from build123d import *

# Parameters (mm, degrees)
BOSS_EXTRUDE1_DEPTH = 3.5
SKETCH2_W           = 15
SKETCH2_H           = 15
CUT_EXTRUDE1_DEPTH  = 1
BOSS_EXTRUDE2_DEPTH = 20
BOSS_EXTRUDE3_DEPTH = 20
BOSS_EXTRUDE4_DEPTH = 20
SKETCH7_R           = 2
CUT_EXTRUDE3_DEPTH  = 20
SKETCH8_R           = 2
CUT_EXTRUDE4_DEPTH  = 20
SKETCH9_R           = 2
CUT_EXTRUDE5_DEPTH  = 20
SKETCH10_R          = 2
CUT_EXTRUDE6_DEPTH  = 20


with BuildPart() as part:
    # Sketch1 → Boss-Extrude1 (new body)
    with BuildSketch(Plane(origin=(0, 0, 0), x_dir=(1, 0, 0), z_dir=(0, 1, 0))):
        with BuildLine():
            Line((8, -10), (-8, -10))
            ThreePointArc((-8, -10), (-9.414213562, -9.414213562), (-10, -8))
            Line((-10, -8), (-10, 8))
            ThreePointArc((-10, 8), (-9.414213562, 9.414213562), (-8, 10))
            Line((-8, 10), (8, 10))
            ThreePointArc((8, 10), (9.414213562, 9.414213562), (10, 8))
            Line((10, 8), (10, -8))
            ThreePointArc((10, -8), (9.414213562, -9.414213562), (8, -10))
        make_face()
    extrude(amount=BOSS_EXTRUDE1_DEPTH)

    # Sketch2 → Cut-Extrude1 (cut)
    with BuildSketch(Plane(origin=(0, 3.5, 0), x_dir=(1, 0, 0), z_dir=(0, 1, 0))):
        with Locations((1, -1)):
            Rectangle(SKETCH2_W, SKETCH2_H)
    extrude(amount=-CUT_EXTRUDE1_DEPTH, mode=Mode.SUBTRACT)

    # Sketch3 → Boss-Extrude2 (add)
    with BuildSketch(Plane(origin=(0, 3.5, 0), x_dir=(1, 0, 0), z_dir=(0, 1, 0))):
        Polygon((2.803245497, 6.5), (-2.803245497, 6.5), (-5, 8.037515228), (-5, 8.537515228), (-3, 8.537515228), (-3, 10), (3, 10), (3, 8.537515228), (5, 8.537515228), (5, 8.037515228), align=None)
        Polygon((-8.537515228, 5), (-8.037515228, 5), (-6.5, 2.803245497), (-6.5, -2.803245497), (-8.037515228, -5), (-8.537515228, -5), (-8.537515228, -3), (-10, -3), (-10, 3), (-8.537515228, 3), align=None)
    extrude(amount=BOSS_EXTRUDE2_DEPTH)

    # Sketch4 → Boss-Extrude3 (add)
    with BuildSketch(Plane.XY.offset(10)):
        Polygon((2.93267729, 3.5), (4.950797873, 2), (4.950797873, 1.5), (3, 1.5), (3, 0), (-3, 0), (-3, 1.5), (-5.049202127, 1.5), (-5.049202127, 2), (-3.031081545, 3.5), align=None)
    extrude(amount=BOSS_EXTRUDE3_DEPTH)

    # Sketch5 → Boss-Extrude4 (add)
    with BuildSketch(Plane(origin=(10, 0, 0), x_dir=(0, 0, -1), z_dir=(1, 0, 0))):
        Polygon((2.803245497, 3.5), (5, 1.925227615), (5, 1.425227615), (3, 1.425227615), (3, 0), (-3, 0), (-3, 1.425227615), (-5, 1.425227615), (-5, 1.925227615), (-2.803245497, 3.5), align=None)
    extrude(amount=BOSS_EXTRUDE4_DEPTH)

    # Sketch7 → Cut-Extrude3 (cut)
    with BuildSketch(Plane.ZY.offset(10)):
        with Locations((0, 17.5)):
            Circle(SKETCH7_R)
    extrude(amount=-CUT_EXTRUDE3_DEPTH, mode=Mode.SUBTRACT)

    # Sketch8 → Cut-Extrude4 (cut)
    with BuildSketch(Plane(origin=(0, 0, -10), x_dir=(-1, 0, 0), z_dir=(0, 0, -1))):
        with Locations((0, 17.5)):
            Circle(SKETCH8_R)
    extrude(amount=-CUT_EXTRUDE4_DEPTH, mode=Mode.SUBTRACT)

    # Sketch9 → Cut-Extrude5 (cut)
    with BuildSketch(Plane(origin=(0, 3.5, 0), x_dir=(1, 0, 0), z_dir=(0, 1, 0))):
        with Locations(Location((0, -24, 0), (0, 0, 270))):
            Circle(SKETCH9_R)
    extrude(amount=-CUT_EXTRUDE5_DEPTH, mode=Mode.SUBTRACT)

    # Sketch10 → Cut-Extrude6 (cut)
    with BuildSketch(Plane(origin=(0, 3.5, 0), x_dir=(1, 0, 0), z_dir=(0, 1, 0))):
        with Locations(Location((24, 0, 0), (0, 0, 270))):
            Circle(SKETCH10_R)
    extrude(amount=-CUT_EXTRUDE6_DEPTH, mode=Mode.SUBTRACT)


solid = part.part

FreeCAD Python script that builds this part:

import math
import FreeCAD as App
import Part
import Sketcher

V = App.Vector

doc = App.newDocument("Part")
params = doc.addObject("Spreadsheet::Sheet", "Params")
for row, (alias, value) in enumerate([
    ("sketch1_radius", "2 mm"),
    ("sketch1_width", "16 mm"),
    ("pad1_length", "3.5 mm"),
    ("sketch2_width", "15 mm"),
    ("pocket1_length", "1 mm"),
    ("sketch3_width", "2 mm"),
    ("sketch3_width2", "6 mm"),
    ("sketch3_width3", "0.5 mm"),
    ("pad2_length", "20 mm"),
    ("sketch4_width", "6 mm"),
    ("sketch4_height", "0.5 mm"),
    ("sketch4_height2", "1.5 mm"),
    ("pad3_length", "20 mm"),
    ("sketch5_height", "2 mm"),
    ("sketch5_height2", "6 mm"),
    ("sketch5_width", "0.5 mm"),
    ("pad4_length", "20 mm"),
    ("sketch6_diameter", "4 mm"),
    ("pocket2_length", "20 mm"),
    ("sketch7_diameter", "4 mm"),
    ("pocket3_length", "20 mm"),
    ("sketch8_diameter", "4 mm"),
    ("pocket4_length", "20 mm"),
    ("sketch9_diameter", "4 mm"),
    ("pocket5_length", "20 mm"),
], start=1):
    params.set(f"A{row}", alias)
    params.set(f"B{row}", "=" + value)
    params.setAlias(f"B{row}", alias)

body = doc.addObject("PartDesign::Body", "Body")

# Sketch on XZ plane
sketch1 = body.newObject("Sketcher::SketchObject", "Sketch")
sketch1.AttachmentSupport = (doc.getObject("XZ_Plane"), [""])
sketch1.MapMode = "FlatFace"
sketch1.addGeometry([
    Part.LineSegment(V(-8, 10, 0), V(8, 10, 0)),  # 0
    Part.ArcOfCircle(Part.Circle(V(8, 8, 0), V(0, 0, 1), 2), math.radians(0), math.radians(90)),  # 1
    Part.LineSegment(V(10, 8, 0), V(10, -8, 0)),  # 2
    Part.ArcOfCircle(Part.Circle(V(8, -8, 0), V(0, 0, 1), 2), math.radians(-90), math.radians(0)),  # 3
    Part.LineSegment(V(8, -10, 0), V(-8, -10, 0)),  # 4
    Part.ArcOfCircle(Part.Circle(V(-8, -8, 0), V(0, 0, 1), 2), math.radians(-180), math.radians(-90)),  # 5
    Part.LineSegment(V(-10, -8, 0), V(-10, 8, 0)),  # 6
    Part.ArcOfCircle(Part.Circle(V(-8, 8, 0), V(0, 0, 1), 2), math.radians(90), math.radians(180)),  # 7
], False)
sketch1.addConstraint([
    Sketcher.Constraint("Tangent", 0, 2, 1, 2),
    Sketcher.Constraint("Tangent", 1, 1, 2, 1),
    Sketcher.Constraint("Tangent", 2, 2, 3, 2),
    Sketcher.Constraint("Tangent", 3, 1, 4, 1),
    Sketcher.Constraint("Tangent", 4, 2, 5, 2),
    Sketcher.Constraint("Tangent", 5, 1, 6, 1),
    Sketcher.Constraint("Tangent", 6, 2, 7, 2),
    Sketcher.Constraint("Tangent", 7, 1, 0, 1),
    Sketcher.Constraint("Horizontal", 0),
    Sketcher.Constraint("Vertical", 2),
    Sketcher.Constraint("Horizontal", 4),
    Sketcher.Constraint("Vertical", 6),
    Sketcher.Constraint("Equal", 1, 3),
    Sketcher.Constraint("Equal", 3, 5),
    Sketcher.Constraint("Equal", 5, 7),
    Sketcher.Constraint("Symmetric", 1, 3, 5, 3, -1, 1),
    Sketcher.Constraint("Equal", 4, 2),
    Sketcher.Constraint("Radius", 1, 2.0),
    Sketcher.Constraint("DistanceX", 0, 1, 0, 2, 16.0),
])
sketch1.setExpression("Constraints[17]", "Params.sketch1_radius")
sketch1.setExpression("Constraints[18]", "Params.sketch1_width")
pad1 = body.newObject("PartDesign::Pad", "Pad")
pad1.Profile = sketch1
pad1.setExpression("Length", "Params.pad1_length")
pad1.Reversed = True

# Sketch on XZ plane
sketch2 = body.newObject("Sketcher::SketchObject", "Sketch001")
sketch2.AttachmentSupport = (doc.getObject("XZ_Plane"), [""])
sketch2.MapMode = "FlatFace"
sketch2.AttachmentOffset = App.Placement(V(0, 0, -3.5), App.Rotation())
sketch2.addGeometry([
    Part.LineSegment(V(-6.5, -6.5, 0), V(-6.5, 8.5, 0)),
    Part.LineSegment(V(-6.5, 8.5, 0), V(8.5, 8.5, 0)),
    Part.LineSegment(V(8.5, 8.5, 0), V(8.5, -6.5, 0)),
    Part.LineSegment(V(8.5, -6.5, 0), V(-6.5, -6.5, 0)),
], False)
sketch2.addConstraint([
    Sketcher.Constraint("Coincident", 0, 2, 1, 1),
    Sketcher.Constraint("Coincident", 1, 2, 2, 1),
    Sketcher.Constraint("Coincident", 2, 2, 3, 1),
    Sketcher.Constraint("Coincident", 3, 2, 0, 1),
    Sketcher.Constraint("Vertical", 0),
    Sketcher.Constraint("Horizontal", 1),
    Sketcher.Constraint("Vertical", 2),
    Sketcher.Constraint("Horizontal", 3),
    Sketcher.Constraint("Equal", 3, 0),
    Sketcher.Constraint("DistanceX", 1, 1, 1, 2, 15.0),
    Sketcher.Constraint("DistanceX", 0, 2, -1, 1, 6.5),
    Sketcher.Constraint("DistanceY", -1, 1, 0, 2, 8.5),
])
sketch2.setExpression("Constraints[9]", "Params.sketch2_width")
pocket1 = body.newObject("PartDesign::Pocket", "Pocket")
pocket1.Profile = sketch2
pocket1.setExpression("Length", "Params.pocket1_length")
pocket1.Reversed = True

# Sketch on XZ plane
sketch3 = body.newObject("Sketcher::SketchObject", "Sketch002")
sketch3.AttachmentSupport = (doc.getObject("XZ_Plane"), [""])
sketch3.MapMode = "FlatFace"
sketch3.AttachmentOffset = App.Placement(V(0, 0, -3.5), App.Rotation())
sketch3.addGeometry([
    Part.LineSegment(V(-2.803245, -6.5, 0), V(2.803245, -6.5, 0)),  # 0
    Part.LineSegment(V(2.803245, -6.5, 0), V(5, -8.037515, 0)),  # 1
    Part.LineSegment(V(5, -8.037515, 0), V(5, -8.537515, 0)),  # 2
    Part.LineSegment(V(5, -8.537515, 0), V(3, -8.537515, 0)),  # 3
    Part.LineSegment(V(3, -8.537515, 0), V(3, -10, 0)),  # 4
    Part.LineSegment(V(3, -10, 0), V(-3, -10, 0)),  # 5
    Part.LineSegment(V(-3, -10, 0), V(-3, -8.537515, 0)),  # 6
    Part.LineSegment(V(-3, -8.537515, 0), V(-5, -8.537515, 0)),  # 7
    Part.LineSegment(V(-5, -8.537515, 0), V(-5, -8.037515, 0)),  # 8
    Part.LineSegment(V(-5, -8.037515, 0), V(-2.803245, -6.5, 0)),  # 9
    Part.LineSegment(V(-8.037515, -5, 0), V(-8.537515, -5, 0)),  # 10
    Part.LineSegment(V(-8.537515, -5, 0), V(-8.537515, -3, 0)),  # 11
    Part.LineSegment(V(-8.537515, -3, 0), V(-10, -3, 0)),  # 12
    Part.LineSegment(V(-10, -3, 0), V(-10, 3, 0)),  # 13
    Part.LineSegment(V(-10, 3, 0), V(-8.537515, 3, 0)),  # 14
    Part.LineSegment(V(-8.537515, 3, 0), V(-8.537515, 5, 0)),  # 15
    Part.LineSegment(V(-8.537515, 5, 0), V(-8.037515, 5, 0)),  # 16
    Part.LineSegment(V(-8.037515, 5, 0), V(-6.5, 2.803245, 0)),  # 17
    Part.LineSegment(V(-6.5, 2.803245, 0), V(-6.5, -2.803245, 0)),  # 18
    Part.LineSegment(V(-6.5, -2.803245, 0), V(-8.037515, -5, 0)),  # 19
], False)
sketch3.addConstraint([
    Sketcher.Constraint("Coincident", 0, 2, 1, 1),
    Sketcher.Constraint("Coincident", 1, 2, 2, 1),
    Sketcher.Constraint("Coincident", 2, 2, 3, 1),
    Sketcher.Constraint("Coincident", 3, 2, 4, 1),
    Sketcher.Constraint("Coincident", 4, 2, 5, 1),
    Sketcher.Constraint("Coincident", 5, 2, 6, 1),
    Sketcher.Constraint("Coincident", 6, 2, 7, 1),
    Sketcher.Constraint("Coincident", 7, 2, 8, 1),
    Sketcher.Constraint("Coincident", 8, 2, 9, 1),
    Sketcher.Constraint("Coincident", 9, 2, 0, 1),
    Sketcher.Constraint("Coincident", 10, 2, 11, 1),
    Sketcher.Constraint("Coincident", 11, 2, 12, 1),
    Sketcher.Constraint("Coincident", 12, 2, 13, 1),
    Sketcher.Constraint("Coincident", 13, 2, 14, 1),
    Sketcher.Constraint("Coincident", 14, 2, 15, 1),
    Sketcher.Constraint("Coincident", 15, 2, 16, 1),
    Sketcher.Constraint("Coincident", 16, 2, 17, 1),
    Sketcher.Constraint("Coincident", 17, 2, 18, 1),
    Sketcher.Constraint("Coincident", 18, 2, 19, 1),
    Sketcher.Constraint("Coincident", 19, 2, 10, 1),
    Sketcher.Constraint("Horizontal", 0),
    Sketcher.Constraint("Vertical", 2),
    Sketcher.Constraint("Horizontal", 3),
    Sketcher.Constraint("Vertical", 4),
    Sketcher.Constraint("Horizontal", 5),
    Sketcher.Constraint("Vertical", 6),
    Sketcher.Constraint("Horizontal", 7),
    Sketcher.Constraint("Vertical", 8),
    Sketcher.Constraint("Horizontal", 10),
    Sketcher.Constraint("Vertical", 11),
    Sketcher.Constraint("Horizontal", 12),
    Sketcher.Constraint("Vertical", 13),
    Sketcher.Constraint("Horizontal", 14),
    Sketcher.Constraint("Vertical", 15),
    Sketcher.Constraint("Horizontal", 16),
    Sketcher.Constraint("Vertical", 18),
    Sketcher.Constraint("Symmetric", 3, 2, 6, 2, -2),
    Sketcher.Constraint("Symmetric", 1, 2, 8, 2, -2),
    Sketcher.Constraint("Symmetric", 11, 2, 14, 2, -1),
    Sketcher.Constraint("Symmetric", 16, 2, 19, 2, -1),
    Sketcher.Constraint("Perpendicular", 9, 17),
    Sketcher.Constraint("Perpendicular", 1, 19),
    Sketcher.Constraint("Equal", 16, 2),
    Sketcher.Constraint("Equal", 14, 4),
    Sketcher.Constraint("Equal", 7, 11),
    Sketcher.Constraint("Equal", 5, 13),
    Sketcher.Constraint("Equal", 0, 18),
    Sketcher.Constraint("Equal", 1, 9),
    Sketcher.Constraint("DistanceX", 3, 2, 3, 1, 2.0),
    Sketcher.Constraint("DistanceX", 5, 2, 5, 1, 6.0),
    Sketcher.Constraint("DistanceX", 10, 2, 10, 1, 0.5),
    Sketcher.Constraint("DistanceY", 4, 2, -1, 1, 10.0),
    Sketcher.Constraint("DistanceX", 12, 2, -1, 1, 10.0),
    Sketcher.Constraint("DistanceY", 0, 2, -1, 1, 6.5),
    Sketcher.Constraint("DistanceX", 0, 1, 0, 2, 5.606491),
    Sketcher.Constraint("Distance", 1, 2.681359),
])
sketch3.setExpression("Constraints[48]", "Params.sketch3_width")
sketch3.setExpression("Constraints[49]", "Params.sketch3_width2")
sketch3.setExpression("Constraints[50]", "Params.sketch3_width3")
pad2 = body.newObject("PartDesign::Pad", "Pad001")
pad2.Profile = sketch3
pad2.setExpression("Length", "Params.pad2_length")
pad2.Reversed = True

# Sketch on XY plane
sketch4 = body.newObject("Sketcher::SketchObject", "Sketch003")
sketch4.AttachmentSupport = (doc.getObject("XY_Plane"), [""])
sketch4.MapMode = "FlatFace"
sketch4.AttachmentOffset = App.Placement(V(0, 0, 10), App.Rotation())
sketch4.addGeometry([
    Part.LineSegment(V(4.950798, 2, 0), V(2.932677, 3.5, 0)),  # 0
    Part.LineSegment(V(2.932677, 3.5, 0), V(-3.031082, 3.5, 0)),  # 1
    Part.LineSegment(V(-3.031082, 3.5, 0), V(-5.049202, 2, 0)),  # 2
    Part.LineSegment(V(-5.049202, 2, 0), V(-5.049202, 1.5, 0)),  # 3
    Part.LineSegment(V(-5.049202, 1.5, 0), V(-3, 1.5, 0)),  # 4
    Part.LineSegment(V(-3, 1.5, 0), V(-3, 0, 0)),  # 5
    Part.LineSegment(V(-3, 0, 0), V(3, 0, 0)),  # 6
    Part.LineSegment(V(3, 0, 0), V(3, 1.5, 0)),  # 7
    Part.LineSegment(V(3, 1.5, 0), V(4.950798, 1.5, 0)),  # 8
    Part.LineSegment(V(4.950798, 1.5, 0), V(4.950798, 2, 0)),  # 9
], False)
sketch4.addConstraint([
    Sketcher.Constraint("Coincident", 0, 2, 1, 1),
    Sketcher.Constraint("Coincident", 1, 2, 2, 1),
    Sketcher.Constraint("Coincident", 2, 2, 3, 1),
    Sketcher.Constraint("Coincident", 3, 2, 4, 1),
    Sketcher.Constraint("Coincident", 4, 2, 5, 1),
    Sketcher.Constraint("Coincident", 5, 2, 6, 1),
    Sketcher.Constraint("Coincident", 6, 2, 7, 1),
    Sketcher.Constraint("Coincident", 7, 2, 8, 1),
    Sketcher.Constraint("Coincident", 8, 2, 9, 1),
    Sketcher.Constraint("Coincident", 9, 2, 0, 1),
    Sketcher.Constraint("Horizontal", 1),
    Sketcher.Constraint("Vertical", 3),
    Sketcher.Constraint("Horizontal", 4),
    Sketcher.Constraint("Vertical", 5),
    Sketcher.Constraint("Horizontal", 6),
    Sketcher.Constraint("Vertical", 7),
    Sketcher.Constraint("Horizontal", 8),
    Sketcher.Constraint("Vertical", 9),
    Sketcher.Constraint("Symmetric", 5, 2, 6, 2, -1, 1),
    Sketcher.Constraint("Horizontal", 4, 2, 7, 2),
    Sketcher.Constraint("Horizontal", 2, 2, 9, 2),
    Sketcher.Constraint("Equal", 0, 2),
    Sketcher.Constraint("DistanceX", 6, 1, 6, 2, 6.0),
    Sketcher.Constraint("DistanceY", 3, 2, 3, 1, 0.5),
    Sketcher.Constraint("DistanceY", 5, 2, 5, 1, 1.5),
    Sketcher.Constraint("DistanceY", 3, 2, 1, 2, 2.0),
    Sketcher.Constraint("DistanceX", 1, 2, 1, 1, 5.963759),
    Sketcher.Constraint("Distance", 0, 2.51452),
    Sketcher.Constraint("DistanceX", 4, 1, 4, 2, 2.049202),
])
sketch4.setExpression("Constraints[22]", "Params.sketch4_width")
sketch4.setExpression("Constraints[23]", "Params.sketch4_height")
sketch4.setExpression("Constraints[24]", "Params.sketch4_height2")
pad3 = body.newObject("PartDesign::Pad", "Pad002")
pad3.Profile = sketch4
pad3.setExpression("Length", "Params.pad3_length")

# Sketch on YZ plane
sketch5 = body.newObject("Sketcher::SketchObject", "Sketch004")
sketch5.AttachmentSupport = (doc.getObject("YZ_Plane"), [""])
sketch5.MapMode = "FlatFace"
sketch5.AttachmentOffset = App.Placement(V(0, 0, 10), App.Rotation())
sketch5.addGeometry([
    Part.LineSegment(V(1.925228, -5, 0), V(3.5, -2.803245, 0)),  # 0
    Part.LineSegment(V(3.5, -2.803245, 0), V(3.5, 2.803245, 0)),  # 1
    Part.LineSegment(V(3.5, 2.803245, 0), V(1.925228, 5, 0)),  # 2
    Part.LineSegment(V(1.925228, 5, 0), V(1.425228, 5, 0)),  # 3
    Part.LineSegment(V(1.425228, 5, 0), V(1.425228, 3, 0)),  # 4
    Part.LineSegment(V(1.425228, 3, 0), V(0, 3, 0)),  # 5
    Part.LineSegment(V(0, 3, 0), V(0, -3, 0)),  # 6
    Part.LineSegment(V(0, -3, 0), V(1.425228, -3, 0)),  # 7
    Part.LineSegment(V(1.425228, -3, 0), V(1.425228, -5, 0)),  # 8
    Part.LineSegment(V(1.425228, -5, 0), V(1.925228, -5, 0)),  # 9
], False)
sketch5.addConstraint([
    Sketcher.Constraint("Coincident", 0, 2, 1, 1),
    Sketcher.Constraint("Coincident", 1, 2, 2, 1),
    Sketcher.Constraint("Coincident", 2, 2, 3, 1),
    Sketcher.Constraint("Coincident", 3, 2, 4, 1),
    Sketcher.Constraint("Coincident", 4, 2, 5, 1),
    Sketcher.Constraint("Coincident", 5, 2, 6, 1),
    Sketcher.Constraint("Coincident", 6, 2, 7, 1),
    Sketcher.Constraint("Coincident", 7, 2, 8, 1),
    Sketcher.Constraint("Coincident", 8, 2, 9, 1),
    Sketcher.Constraint("Coincident", 9, 2, 0, 1),
    Sketcher.Constraint("Vertical", 1),
    Sketcher.Constraint("Horizontal", 3),
    Sketcher.Constraint("Vertical", 4),
    Sketcher.Constraint("Horizontal", 5),
    Sketcher.Constraint("Vertical", 6),
    Sketcher.Constraint("Horizontal", 7),
    Sketcher.Constraint("Vertical", 8),
    Sketcher.Constraint("Horizontal", 9),
    Sketcher.Constraint("Symmetric", 5, 2, 6, 2, -1, 1),
    Sketcher.Constraint("Symmetric", 3, 2, 8, 2, -1),
    Sketcher.Constraint("Vertical", 2, 2, 9, 2),
    Sketcher.Constraint("Equal", 0, 2),
    Sketcher.Constraint("DistanceY", 4, 2, 4, 1, 2.0),
    Sketcher.Constraint("DistanceY", 6, 2, 6, 1, 6.0),
    Sketcher.Constraint("DistanceX", 3, 2, 3, 1, 0.5),
    Sketcher.Constraint("DistanceX", -1, 1, 0, 2, 3.5),
    Sketcher.Constraint("DistanceY", 1, 1, 1, 2, 5.606491),
    Sketcher.Constraint("DistanceX", 5, 2, 5, 1, 1.425228),
])
sketch5.setExpression("Constraints[22]", "Params.sketch5_height")
sketch5.setExpression("Constraints[23]", "Params.sketch5_height2")
sketch5.setExpression("Constraints[24]", "Params.sketch5_width")
pad4 = body.newObject("PartDesign::Pad", "Pad003")
pad4.Profile = sketch5
pad4.setExpression("Length", "Params.pad4_length")

# Sketch on YZ plane
sketch6 = body.newObject("Sketcher::SketchObject", "Sketch005")
sketch6.AttachmentSupport = (doc.getObject("YZ_Plane"), [""])
sketch6.MapMode = "FlatFace"
sketch6.AttachmentOffset = App.Placement(V(0, 0, -10), App.Rotation())
sketch6.addGeometry(Part.Circle(V(17.5, 0, 0), V(0, 0, 1), 2), False)
sketch6.addConstraint([
    Sketcher.Constraint("PointOnObject", 0, 3, -1),
    Sketcher.Constraint("Diameter", 0, 4.0),
    Sketcher.Constraint("DistanceX", -1, 1, 0, 3, 17.5),
])
sketch6.setExpression("Constraints[1]", "Params.sketch6_diameter")
pocket2 = body.newObject("PartDesign::Pocket", "Pocket001")
pocket2.Profile = sketch6
pocket2.setExpression("Length", "Params.pocket2_length")
pocket2.Reversed = True

# Sketch on XY plane
sketch7 = body.newObject("Sketcher::SketchObject", "Sketch006")
sketch7.AttachmentSupport = (doc.getObject("XY_Plane"), [""])
sketch7.MapMode = "FlatFace"
sketch7.AttachmentOffset = App.Placement(V(0, 0, -10), App.Rotation())
sketch7.addGeometry(Part.Circle(V(0, 17.5, 0), V(0, 0, 1), 2), False)
sketch7.addConstraint([
    Sketcher.Constraint("PointOnObject", 0, 3, -2),
    Sketcher.Constraint("Diameter", 0, 4.0),
    Sketcher.Constraint("DistanceY", -1, 1, 0, 3, 17.5),
])
sketch7.setExpression("Constraints[1]", "Params.sketch7_diameter")
pocket3 = body.newObject("PartDesign::Pocket", "Pocket002")
pocket3.Profile = sketch7
pocket3.setExpression("Length", "Params.pocket3_length")
pocket3.Reversed = True

# Sketch on XZ plane
sketch8 = body.newObject("Sketcher::SketchObject", "Sketch007")
sketch8.AttachmentSupport = (doc.getObject("XZ_Plane"), [""])
sketch8.MapMode = "FlatFace"
sketch8.AttachmentOffset = App.Placement(V(0, 0, -3.5), App.Rotation())
sketch8.addGeometry(Part.Circle(V(0, 24, 0), V(0, 0, 1), 2), False)
sketch8.addConstraint([
    Sketcher.Constraint("PointOnObject", 0, 3, -2),
    Sketcher.Constraint("Diameter", 0, 4.0),
    Sketcher.Constraint("DistanceY", -1, 1, 0, 3, 24.0),
])
sketch8.setExpression("Constraints[1]", "Params.sketch8_diameter")
pocket4 = body.newObject("PartDesign::Pocket", "Pocket003")
pocket4.Profile = sketch8
pocket4.setExpression("Length", "Params.pocket4_length")
pocket4.Reversed = True

# Sketch on XZ plane
sketch9 = body.newObject("Sketcher::SketchObject", "Sketch008")
sketch9.AttachmentSupport = (doc.getObject("XZ_Plane"), [""])
sketch9.MapMode = "FlatFace"
sketch9.AttachmentOffset = App.Placement(V(0, 0, -3.5), App.Rotation())
sketch9.addGeometry(Part.Circle(V(24, 0, 0), V(0, 0, 1), 2), False)
sketch9.addConstraint([
    Sketcher.Constraint("PointOnObject", 0, 3, -1),
    Sketcher.Constraint("Diameter", 0, 4.0),
    Sketcher.Constraint("DistanceX", -1, 1, 0, 3, 24.0),
])
sketch9.setExpression("Constraints[1]", "Params.sketch9_diameter")
pocket5 = body.newObject("PartDesign::Pocket", "Pocket004")
pocket5.Profile = sketch9
pocket5.setExpression("Length", "Params.pocket5_length")
pocket5.Reversed = True

doc.recompute()
